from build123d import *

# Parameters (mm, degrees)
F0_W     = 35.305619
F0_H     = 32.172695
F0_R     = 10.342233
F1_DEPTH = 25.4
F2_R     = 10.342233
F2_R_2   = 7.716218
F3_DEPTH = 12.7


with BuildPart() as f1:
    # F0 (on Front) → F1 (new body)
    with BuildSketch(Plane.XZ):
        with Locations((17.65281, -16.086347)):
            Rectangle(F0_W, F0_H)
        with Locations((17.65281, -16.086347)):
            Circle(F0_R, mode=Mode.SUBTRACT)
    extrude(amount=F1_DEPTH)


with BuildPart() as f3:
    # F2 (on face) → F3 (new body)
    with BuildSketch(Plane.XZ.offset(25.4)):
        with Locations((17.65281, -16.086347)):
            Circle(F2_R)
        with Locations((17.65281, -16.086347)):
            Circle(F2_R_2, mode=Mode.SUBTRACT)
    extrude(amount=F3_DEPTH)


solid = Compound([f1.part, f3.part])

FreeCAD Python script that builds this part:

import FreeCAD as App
import Part
import Sketcher

V = App.Vector
Q = App.Units.Quantity


def add_polygon(sketch, points):
    """Adds a closed chain of lines whose ends are joined by coincident constraints."""
    first, n = sketch.GeometryCount, len(points)
    for a, b in zip(points, points[1:] + points[:1]):
        sketch.addGeometry(Part.LineSegment(App.Vector(*a, 0), App.Vector(*b, 0)), False)
    for i in range(n):
        sketch.addConstraint(Sketcher.Constraint("Coincident", first + i, 2, first + (i + 1) % n, 1))

doc = App.newDocument("Part")
body = doc.addObject("PartDesign::Body", "Body")

# Sketch on XZ plane
sketch1 = body.newObject("Sketcher::SketchObject", "Sketch")
sketch1.AttachmentSupport = (doc.getObject("XZ_Plane"), [""])
sketch1.MapMode = "FlatFace"
add_polygon(sketch1, [(0, 0), (0, -32.172694), (35.305619, -32.172694), (35.305619, 0)])  # lines 0-3
sketch1.addGeometry(Part.Circle(V(17.65281, -16.086347, 0), V(0, 0, 1), 10.342233), False)  # 4
sketch1.addConstraint([
    Sketcher.Constraint("Vertical", 0),
    Sketcher.Constraint("Horizontal", 1),
    Sketcher.Constraint("Vertical", 2),
    Sketcher.Constraint("Horizontal", 3),
    Sketcher.Constraint("Coincident", 3, 2, -1, 1),
    Sketcher.Constraint("Diameter", 4, Q("20.684466 mm")),
    Sketcher.Constraint("DistanceX", 1, 1, 1, 2, Q("35.305619 mm")),
    Sketcher.Constraint("DistanceY", 0, 2, 0, 1, Q("32.172695 mm")),
    Sketcher.Constraint("DistanceX", -1, 1, 4, 3, Q("17.65281 mm")),
    Sketcher.Constraint("DistanceY", 4, 3, -1, 1, Q("16.086347 mm")),
])
pad1 = body.newObject("PartDesign::Pad", "Pad")
pad1.Profile = sketch1
pad1.Length = Q("1 in")
body2 = doc.addObject("PartDesign::Body", "Body001")

# Sketch on XZ plane
sketch2 = body2.newObject("Sketcher::SketchObject", "Sketch001")
sketch2.AttachmentSupport = (doc.getObject("XZ_Plane001"), [""])
sketch2.MapMode = "FlatFace"
sketch2.AttachmentOffset = App.Placement(V(0, 0, 1 * 25.4), App.Rotation())
sketch2.addGeometry([
    Part.Circle(V(17.65281, -16.086347, 0), V(0, 0, 1), 10.342233),
    Part.Circle(V(17.65281, -16.086347, 0), V(0, 0, 1), 7.716218),
], False)
sketch2.addConstraint([
    Sketcher.Constraint("Coincident", 1, 3, 0, 3),
    Sketcher.Constraint("Diameter", 0, Q("20.684466 mm")),
    Sketcher.Constraint("Diameter", 1, Q("15.432436 mm")),
    Sketcher.Constraint("DistanceX", -1, 1, 0, 3, Q("17.65281 mm")),
    Sketcher.Constraint("DistanceY", 0, 3, -1, 1, Q("16.086347 mm")),
])
pad2 = body2.newObject("PartDesign::Pad", "Pad001")
pad2.Profile = sketch2
pad2.Length = Q("0.5 in")

doc.recompute()
